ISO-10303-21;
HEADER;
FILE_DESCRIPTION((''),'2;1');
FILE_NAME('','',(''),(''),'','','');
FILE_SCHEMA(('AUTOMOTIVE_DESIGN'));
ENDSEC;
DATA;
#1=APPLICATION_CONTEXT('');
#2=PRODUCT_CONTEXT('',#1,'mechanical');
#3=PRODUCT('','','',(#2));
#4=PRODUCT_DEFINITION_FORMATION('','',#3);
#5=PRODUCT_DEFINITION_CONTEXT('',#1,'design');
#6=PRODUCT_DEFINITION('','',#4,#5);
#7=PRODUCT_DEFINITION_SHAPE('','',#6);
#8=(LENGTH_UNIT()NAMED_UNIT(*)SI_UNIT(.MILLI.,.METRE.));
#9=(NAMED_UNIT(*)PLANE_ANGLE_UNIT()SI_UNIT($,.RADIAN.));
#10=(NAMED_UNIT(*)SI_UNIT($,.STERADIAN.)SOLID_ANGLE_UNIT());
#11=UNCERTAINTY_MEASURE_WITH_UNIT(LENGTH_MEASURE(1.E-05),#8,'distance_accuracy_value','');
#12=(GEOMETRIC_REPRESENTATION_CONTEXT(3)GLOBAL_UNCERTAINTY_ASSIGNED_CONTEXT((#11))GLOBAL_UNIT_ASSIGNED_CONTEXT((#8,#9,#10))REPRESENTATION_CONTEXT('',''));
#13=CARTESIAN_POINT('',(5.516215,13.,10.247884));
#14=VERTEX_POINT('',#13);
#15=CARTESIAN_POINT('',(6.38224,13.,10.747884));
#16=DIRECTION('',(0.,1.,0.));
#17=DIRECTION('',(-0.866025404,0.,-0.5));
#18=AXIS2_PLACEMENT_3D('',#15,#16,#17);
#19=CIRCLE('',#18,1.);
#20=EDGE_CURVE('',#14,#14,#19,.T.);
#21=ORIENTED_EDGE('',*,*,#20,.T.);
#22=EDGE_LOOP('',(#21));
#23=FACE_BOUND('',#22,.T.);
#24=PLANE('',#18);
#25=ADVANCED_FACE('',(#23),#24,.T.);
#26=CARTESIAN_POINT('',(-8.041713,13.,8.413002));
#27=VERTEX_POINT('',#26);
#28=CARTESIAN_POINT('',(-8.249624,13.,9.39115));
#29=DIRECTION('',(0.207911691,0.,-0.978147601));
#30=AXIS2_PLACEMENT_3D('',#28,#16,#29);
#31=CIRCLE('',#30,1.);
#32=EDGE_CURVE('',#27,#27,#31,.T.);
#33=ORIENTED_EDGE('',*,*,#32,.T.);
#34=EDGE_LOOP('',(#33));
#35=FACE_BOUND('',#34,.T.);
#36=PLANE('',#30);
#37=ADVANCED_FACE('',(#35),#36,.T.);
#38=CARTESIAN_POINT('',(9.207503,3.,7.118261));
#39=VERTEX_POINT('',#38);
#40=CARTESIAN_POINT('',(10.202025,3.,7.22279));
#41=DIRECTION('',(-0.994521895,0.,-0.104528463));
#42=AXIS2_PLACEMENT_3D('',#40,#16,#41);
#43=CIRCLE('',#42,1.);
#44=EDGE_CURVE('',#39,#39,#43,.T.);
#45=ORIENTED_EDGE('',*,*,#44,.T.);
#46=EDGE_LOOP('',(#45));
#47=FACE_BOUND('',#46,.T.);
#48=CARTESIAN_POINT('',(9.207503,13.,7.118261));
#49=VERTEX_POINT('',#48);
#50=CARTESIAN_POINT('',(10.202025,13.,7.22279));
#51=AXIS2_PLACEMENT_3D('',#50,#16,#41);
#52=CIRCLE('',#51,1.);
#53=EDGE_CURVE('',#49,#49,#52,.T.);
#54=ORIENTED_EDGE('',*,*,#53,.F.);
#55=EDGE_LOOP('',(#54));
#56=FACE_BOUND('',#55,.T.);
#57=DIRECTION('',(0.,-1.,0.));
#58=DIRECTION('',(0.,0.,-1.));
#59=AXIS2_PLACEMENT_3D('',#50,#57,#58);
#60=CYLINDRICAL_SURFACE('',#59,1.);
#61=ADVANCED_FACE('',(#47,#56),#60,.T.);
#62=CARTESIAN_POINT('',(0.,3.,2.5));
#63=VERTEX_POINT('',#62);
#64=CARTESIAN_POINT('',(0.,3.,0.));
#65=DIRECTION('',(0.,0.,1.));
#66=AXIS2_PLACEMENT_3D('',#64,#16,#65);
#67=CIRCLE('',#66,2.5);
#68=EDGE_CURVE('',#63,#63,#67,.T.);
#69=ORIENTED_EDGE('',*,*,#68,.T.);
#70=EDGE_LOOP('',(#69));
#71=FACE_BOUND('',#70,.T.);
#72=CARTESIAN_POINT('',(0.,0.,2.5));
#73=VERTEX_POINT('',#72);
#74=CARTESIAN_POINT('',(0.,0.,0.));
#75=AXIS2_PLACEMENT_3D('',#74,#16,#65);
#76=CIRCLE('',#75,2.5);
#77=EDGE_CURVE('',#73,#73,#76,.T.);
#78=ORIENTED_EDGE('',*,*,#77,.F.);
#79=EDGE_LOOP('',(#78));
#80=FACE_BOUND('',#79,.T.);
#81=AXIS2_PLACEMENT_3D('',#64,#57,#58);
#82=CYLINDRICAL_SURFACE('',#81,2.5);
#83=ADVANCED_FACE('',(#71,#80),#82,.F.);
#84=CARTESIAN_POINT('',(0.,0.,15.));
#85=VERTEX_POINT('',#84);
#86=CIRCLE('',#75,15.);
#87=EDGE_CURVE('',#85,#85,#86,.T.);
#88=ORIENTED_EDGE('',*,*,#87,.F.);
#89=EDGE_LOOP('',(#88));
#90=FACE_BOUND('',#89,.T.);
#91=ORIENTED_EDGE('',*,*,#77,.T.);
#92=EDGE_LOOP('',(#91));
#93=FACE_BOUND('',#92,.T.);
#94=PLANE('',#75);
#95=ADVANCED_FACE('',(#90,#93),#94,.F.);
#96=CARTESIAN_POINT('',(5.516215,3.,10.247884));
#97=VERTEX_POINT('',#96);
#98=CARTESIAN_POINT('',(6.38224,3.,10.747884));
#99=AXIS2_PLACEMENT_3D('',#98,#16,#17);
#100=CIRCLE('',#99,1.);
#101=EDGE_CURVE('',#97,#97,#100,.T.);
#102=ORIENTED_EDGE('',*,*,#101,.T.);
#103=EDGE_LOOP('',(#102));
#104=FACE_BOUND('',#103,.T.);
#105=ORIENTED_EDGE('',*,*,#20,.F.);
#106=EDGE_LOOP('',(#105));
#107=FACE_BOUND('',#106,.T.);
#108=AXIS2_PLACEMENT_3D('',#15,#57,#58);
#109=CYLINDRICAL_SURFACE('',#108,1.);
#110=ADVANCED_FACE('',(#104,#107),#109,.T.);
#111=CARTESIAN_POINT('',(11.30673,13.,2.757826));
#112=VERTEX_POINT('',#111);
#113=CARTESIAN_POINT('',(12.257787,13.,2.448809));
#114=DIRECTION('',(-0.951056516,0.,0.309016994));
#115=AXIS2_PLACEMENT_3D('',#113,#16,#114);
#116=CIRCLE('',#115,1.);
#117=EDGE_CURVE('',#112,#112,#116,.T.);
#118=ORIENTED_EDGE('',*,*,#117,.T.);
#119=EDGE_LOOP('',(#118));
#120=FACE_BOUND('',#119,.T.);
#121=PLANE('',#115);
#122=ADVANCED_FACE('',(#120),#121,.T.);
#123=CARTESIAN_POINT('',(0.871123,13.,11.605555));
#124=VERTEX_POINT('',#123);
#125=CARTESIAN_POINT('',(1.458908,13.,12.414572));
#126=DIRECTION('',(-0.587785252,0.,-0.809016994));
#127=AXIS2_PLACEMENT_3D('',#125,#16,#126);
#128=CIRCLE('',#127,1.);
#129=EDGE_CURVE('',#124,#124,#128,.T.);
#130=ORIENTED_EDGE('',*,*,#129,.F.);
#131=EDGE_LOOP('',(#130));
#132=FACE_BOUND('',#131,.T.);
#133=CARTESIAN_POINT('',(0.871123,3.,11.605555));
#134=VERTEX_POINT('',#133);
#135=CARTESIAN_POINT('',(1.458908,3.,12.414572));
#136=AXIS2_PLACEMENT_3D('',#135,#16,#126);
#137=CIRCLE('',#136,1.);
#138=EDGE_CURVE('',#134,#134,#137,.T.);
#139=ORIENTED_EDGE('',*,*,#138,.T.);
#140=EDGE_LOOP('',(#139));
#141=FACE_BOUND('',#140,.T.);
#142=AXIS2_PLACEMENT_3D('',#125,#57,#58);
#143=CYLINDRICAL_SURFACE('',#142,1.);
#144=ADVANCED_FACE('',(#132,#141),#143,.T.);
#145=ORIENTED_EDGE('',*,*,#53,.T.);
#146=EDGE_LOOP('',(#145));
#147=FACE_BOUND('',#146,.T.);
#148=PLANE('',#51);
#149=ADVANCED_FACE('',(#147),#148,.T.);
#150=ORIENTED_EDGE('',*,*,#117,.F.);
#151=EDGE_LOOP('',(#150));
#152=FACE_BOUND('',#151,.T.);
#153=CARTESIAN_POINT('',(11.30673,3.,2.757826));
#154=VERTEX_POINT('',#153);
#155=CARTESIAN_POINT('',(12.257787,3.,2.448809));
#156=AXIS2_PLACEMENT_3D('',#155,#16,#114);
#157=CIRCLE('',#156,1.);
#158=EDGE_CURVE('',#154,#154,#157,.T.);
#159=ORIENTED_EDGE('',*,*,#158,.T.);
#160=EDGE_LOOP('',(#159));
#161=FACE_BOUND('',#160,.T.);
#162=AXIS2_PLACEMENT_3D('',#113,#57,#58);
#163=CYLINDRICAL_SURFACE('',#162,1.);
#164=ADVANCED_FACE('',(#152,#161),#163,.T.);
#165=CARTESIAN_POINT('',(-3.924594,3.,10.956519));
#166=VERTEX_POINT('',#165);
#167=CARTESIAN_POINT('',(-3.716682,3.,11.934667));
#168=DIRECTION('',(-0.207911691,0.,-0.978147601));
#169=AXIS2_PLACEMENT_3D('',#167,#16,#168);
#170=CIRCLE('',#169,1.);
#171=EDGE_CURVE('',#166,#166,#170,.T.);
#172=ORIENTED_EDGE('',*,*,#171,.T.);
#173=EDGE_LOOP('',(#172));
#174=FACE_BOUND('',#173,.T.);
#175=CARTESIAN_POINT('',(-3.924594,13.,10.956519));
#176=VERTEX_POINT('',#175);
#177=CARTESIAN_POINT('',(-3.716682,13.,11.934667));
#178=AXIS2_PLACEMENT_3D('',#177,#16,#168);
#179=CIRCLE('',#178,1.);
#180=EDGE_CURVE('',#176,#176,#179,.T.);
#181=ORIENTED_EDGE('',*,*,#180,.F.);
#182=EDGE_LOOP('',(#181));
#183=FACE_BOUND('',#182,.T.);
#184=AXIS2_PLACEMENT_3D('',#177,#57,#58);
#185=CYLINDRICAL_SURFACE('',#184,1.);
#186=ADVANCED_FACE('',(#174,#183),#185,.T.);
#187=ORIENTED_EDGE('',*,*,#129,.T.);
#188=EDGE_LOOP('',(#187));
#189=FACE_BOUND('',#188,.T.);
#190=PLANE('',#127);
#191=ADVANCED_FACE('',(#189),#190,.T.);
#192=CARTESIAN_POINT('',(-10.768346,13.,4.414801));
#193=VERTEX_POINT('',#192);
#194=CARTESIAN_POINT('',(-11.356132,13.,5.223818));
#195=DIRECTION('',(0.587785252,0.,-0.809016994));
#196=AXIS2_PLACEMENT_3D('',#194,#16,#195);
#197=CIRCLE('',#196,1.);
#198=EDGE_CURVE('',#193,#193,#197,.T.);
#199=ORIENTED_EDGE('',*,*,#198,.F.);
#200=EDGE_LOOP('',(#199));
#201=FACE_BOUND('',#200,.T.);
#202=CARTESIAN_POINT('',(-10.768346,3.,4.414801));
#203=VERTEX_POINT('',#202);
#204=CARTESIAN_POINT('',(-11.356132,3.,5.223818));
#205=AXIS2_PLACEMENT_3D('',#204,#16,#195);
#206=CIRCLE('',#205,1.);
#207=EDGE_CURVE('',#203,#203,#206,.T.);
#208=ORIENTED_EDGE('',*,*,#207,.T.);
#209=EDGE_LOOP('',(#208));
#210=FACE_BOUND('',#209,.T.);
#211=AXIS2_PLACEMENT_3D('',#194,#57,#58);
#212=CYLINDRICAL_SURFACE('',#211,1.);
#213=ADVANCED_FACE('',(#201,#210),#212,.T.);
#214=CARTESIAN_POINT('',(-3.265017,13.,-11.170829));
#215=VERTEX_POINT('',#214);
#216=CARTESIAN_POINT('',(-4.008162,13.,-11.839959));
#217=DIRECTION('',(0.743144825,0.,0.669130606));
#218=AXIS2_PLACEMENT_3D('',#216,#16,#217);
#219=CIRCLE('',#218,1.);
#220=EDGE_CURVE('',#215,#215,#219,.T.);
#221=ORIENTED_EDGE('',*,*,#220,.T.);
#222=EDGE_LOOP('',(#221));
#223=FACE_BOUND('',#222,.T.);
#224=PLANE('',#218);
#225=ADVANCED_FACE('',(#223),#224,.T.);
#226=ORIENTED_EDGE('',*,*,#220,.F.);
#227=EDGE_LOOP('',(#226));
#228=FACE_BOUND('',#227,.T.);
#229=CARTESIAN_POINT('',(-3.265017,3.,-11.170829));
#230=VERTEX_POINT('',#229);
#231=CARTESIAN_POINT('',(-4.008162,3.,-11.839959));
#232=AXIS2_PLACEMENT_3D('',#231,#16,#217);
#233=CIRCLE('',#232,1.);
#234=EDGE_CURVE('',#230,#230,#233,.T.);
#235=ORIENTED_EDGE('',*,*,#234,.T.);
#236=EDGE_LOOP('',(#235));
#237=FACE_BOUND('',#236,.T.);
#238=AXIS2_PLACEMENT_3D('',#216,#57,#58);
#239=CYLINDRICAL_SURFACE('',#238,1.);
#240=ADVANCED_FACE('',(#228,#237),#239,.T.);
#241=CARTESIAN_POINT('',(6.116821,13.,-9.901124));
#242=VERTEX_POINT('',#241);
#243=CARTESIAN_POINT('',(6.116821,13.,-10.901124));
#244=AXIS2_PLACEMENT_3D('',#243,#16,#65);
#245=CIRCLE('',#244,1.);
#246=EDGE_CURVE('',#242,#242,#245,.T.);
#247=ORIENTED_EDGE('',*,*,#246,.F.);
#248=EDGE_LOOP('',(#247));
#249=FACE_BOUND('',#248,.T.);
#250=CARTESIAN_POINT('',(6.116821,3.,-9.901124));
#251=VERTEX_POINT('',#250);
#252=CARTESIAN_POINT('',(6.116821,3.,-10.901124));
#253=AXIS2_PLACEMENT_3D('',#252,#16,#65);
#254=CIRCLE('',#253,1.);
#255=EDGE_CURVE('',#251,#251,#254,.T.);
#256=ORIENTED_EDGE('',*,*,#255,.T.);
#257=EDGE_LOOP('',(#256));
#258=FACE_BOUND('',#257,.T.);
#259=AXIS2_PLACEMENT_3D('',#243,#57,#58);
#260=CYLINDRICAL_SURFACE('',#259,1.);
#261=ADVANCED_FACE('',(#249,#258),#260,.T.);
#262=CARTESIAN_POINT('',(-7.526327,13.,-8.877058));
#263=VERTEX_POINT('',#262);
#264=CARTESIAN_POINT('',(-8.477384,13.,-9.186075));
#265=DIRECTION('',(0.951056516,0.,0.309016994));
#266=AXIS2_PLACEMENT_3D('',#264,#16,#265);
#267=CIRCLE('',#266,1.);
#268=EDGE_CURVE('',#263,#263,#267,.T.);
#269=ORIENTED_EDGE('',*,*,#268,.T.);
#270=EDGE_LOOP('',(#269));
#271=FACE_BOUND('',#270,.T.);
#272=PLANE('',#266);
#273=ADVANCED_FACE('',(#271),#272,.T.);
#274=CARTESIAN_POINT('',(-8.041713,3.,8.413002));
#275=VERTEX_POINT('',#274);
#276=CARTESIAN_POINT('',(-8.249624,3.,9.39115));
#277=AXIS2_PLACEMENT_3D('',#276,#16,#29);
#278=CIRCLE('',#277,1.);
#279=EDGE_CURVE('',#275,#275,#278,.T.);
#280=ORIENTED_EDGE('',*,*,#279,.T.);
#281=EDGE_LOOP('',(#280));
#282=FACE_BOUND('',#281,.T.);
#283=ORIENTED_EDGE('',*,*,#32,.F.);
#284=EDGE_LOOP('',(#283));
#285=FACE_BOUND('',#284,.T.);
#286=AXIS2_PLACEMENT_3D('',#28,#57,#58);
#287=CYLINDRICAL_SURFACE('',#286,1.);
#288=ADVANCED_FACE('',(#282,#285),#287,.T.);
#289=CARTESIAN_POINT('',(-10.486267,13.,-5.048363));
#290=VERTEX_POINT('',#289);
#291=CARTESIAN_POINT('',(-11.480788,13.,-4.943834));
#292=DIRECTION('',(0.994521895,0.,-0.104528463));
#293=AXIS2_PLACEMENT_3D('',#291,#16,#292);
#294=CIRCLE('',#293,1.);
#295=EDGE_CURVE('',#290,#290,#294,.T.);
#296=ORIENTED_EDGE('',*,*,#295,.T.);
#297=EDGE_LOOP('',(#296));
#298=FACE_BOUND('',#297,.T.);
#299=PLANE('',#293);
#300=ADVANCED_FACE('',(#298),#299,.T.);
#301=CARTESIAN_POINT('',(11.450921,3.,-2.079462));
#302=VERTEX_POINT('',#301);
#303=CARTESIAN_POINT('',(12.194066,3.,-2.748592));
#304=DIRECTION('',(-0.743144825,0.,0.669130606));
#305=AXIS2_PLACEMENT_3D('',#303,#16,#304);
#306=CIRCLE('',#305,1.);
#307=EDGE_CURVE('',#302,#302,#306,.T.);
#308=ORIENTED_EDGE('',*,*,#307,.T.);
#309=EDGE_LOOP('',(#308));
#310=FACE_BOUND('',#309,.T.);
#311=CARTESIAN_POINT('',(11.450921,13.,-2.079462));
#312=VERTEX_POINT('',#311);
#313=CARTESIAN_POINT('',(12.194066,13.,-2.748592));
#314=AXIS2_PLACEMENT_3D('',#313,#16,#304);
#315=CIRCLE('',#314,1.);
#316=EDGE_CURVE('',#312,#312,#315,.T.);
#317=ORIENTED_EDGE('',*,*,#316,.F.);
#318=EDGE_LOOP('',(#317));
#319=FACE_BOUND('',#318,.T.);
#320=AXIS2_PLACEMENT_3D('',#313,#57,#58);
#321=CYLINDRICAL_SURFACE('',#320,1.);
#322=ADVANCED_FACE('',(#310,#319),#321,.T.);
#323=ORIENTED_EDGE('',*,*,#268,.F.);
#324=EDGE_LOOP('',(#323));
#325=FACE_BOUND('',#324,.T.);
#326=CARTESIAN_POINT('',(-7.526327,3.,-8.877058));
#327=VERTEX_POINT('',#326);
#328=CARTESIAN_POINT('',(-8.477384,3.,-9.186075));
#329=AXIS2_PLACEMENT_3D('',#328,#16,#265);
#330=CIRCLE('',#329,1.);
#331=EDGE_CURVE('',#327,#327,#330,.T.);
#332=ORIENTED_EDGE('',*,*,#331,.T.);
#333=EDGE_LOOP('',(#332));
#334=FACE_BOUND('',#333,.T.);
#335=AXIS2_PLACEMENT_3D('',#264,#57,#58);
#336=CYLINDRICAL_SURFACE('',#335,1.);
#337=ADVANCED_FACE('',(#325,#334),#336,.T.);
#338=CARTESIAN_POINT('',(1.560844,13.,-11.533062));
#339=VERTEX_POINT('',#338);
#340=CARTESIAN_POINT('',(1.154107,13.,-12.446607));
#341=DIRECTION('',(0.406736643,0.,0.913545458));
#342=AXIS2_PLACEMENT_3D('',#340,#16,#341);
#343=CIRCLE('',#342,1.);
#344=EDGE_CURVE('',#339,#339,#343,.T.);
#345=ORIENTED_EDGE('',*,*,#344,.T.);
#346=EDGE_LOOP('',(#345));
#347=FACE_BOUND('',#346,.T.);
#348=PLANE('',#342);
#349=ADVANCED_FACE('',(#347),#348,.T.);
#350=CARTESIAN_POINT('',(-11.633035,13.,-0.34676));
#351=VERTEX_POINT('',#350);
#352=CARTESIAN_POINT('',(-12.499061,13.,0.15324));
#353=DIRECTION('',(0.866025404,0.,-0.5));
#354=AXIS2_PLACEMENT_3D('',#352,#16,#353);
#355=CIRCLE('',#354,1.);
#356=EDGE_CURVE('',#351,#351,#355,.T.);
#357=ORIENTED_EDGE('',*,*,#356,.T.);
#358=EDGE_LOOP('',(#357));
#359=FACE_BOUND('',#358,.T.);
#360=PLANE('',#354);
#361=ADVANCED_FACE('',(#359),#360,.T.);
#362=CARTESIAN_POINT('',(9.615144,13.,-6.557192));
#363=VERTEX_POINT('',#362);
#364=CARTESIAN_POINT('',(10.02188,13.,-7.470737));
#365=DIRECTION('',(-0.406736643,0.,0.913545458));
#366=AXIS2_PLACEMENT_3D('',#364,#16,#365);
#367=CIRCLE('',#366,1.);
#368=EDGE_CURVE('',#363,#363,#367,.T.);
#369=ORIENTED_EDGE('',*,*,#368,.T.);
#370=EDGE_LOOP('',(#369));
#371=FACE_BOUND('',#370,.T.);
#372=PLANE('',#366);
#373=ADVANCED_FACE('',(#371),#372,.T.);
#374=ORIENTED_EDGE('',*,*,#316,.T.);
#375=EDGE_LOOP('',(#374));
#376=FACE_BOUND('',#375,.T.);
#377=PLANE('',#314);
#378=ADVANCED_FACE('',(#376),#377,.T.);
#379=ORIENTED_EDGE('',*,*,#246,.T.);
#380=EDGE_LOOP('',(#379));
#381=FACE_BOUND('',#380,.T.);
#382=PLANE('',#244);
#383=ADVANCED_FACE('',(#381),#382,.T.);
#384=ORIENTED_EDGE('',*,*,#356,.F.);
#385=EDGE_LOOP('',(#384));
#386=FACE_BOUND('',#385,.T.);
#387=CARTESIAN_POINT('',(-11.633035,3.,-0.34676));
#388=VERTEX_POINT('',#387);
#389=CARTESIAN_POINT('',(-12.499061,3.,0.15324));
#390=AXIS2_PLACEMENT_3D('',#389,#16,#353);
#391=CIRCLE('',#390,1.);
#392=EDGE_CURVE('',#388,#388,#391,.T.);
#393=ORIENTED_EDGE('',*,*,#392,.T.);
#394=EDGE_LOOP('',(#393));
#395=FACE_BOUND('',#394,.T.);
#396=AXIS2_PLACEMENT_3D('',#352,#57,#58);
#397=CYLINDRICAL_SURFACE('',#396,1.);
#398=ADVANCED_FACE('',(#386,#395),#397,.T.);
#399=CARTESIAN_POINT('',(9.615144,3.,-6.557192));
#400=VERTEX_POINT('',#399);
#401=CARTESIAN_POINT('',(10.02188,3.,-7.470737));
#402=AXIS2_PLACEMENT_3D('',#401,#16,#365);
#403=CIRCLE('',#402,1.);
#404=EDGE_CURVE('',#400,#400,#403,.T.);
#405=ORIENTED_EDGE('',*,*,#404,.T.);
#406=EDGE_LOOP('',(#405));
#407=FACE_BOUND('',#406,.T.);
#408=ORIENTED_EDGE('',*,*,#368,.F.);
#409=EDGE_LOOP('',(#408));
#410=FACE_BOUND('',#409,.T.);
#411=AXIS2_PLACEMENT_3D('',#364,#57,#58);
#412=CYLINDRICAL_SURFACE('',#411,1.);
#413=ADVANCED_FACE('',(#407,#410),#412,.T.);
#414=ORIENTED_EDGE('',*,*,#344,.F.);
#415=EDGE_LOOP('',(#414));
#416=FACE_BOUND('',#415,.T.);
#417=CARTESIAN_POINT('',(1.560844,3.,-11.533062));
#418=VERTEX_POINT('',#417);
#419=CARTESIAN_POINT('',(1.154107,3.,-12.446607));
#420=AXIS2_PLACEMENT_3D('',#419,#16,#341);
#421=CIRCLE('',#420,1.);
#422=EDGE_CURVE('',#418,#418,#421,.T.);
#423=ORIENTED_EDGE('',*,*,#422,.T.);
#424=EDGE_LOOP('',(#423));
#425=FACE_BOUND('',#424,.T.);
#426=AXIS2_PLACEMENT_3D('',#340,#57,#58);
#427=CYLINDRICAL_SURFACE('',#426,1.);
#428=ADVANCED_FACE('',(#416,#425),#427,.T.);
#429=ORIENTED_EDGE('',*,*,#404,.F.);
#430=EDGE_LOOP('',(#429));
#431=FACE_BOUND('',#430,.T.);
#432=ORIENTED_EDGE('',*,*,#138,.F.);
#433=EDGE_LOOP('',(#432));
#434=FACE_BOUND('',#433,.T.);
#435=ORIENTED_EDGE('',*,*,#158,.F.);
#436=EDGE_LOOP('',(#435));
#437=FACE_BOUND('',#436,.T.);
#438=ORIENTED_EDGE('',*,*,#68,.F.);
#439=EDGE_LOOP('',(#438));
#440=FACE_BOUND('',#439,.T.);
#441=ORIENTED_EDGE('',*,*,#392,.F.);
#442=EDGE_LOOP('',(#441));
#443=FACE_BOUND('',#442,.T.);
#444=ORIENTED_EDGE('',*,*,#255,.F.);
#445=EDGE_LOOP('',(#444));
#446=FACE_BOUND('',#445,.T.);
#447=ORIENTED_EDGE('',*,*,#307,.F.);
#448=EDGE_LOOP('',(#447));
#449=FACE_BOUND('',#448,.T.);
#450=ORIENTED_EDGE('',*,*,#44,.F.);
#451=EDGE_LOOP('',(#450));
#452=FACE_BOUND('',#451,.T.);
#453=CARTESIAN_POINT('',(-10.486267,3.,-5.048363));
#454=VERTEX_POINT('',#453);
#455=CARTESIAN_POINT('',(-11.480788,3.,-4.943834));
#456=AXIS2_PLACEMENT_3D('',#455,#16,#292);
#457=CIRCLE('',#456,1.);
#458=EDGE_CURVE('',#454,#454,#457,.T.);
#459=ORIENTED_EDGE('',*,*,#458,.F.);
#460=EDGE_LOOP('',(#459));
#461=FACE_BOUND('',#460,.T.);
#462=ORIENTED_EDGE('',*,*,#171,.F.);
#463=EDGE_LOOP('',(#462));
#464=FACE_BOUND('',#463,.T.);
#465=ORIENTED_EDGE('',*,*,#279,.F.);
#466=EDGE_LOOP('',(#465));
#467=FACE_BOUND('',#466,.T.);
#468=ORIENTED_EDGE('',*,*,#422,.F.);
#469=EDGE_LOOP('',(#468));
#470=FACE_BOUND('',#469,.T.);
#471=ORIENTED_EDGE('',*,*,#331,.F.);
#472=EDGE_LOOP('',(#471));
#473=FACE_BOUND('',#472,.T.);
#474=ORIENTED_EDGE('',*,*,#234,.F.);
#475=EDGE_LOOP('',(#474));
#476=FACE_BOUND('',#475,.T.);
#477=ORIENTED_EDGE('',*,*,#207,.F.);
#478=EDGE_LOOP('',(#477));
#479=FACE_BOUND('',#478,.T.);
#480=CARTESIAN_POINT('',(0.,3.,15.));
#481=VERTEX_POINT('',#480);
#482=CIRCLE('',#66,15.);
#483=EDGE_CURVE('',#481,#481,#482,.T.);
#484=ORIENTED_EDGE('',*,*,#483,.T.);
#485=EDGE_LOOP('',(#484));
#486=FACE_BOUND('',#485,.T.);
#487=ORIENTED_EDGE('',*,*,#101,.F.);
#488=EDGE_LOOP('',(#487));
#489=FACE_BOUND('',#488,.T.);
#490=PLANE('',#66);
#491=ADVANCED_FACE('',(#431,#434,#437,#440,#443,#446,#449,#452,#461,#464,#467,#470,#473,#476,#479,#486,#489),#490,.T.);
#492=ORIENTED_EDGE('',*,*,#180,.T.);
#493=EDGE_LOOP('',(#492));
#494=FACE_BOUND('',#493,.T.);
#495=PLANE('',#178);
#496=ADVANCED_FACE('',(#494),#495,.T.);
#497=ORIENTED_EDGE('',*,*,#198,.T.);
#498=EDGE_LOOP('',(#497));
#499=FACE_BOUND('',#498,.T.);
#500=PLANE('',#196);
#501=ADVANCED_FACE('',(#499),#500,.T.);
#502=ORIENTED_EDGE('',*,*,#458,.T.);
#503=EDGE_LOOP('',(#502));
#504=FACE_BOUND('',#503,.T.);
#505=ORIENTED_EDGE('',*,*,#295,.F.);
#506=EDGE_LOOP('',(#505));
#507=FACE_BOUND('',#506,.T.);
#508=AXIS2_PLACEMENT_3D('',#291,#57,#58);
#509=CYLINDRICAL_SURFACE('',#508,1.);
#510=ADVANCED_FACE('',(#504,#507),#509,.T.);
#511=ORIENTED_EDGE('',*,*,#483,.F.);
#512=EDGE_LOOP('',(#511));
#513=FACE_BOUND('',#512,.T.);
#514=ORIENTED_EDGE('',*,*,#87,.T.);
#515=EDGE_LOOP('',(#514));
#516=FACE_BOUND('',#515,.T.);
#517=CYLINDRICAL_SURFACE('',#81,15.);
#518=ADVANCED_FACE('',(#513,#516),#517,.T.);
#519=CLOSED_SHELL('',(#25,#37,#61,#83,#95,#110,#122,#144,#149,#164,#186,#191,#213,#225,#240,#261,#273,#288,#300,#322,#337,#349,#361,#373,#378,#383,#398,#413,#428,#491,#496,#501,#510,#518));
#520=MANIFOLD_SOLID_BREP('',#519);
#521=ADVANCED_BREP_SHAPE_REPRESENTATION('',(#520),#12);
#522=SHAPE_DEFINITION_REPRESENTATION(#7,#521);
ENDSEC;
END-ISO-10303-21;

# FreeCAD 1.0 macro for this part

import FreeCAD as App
import Part
import Sketcher
Q = App.Units.Quantity

doc = App.newDocument("Part")
params = doc.addObject("Spreadsheet::Sheet", "Params")
for row, (alias, value) in enumerate([
    ("sketch1_diameter", "30 mm"),
    ("sketch1_diameter2", "5 mm"),
    ("pad1_length", "3 mm"),
    ("sketch2_diameter", "2 mm"),
    ("pad2_length", "10 mm"),
], start=1):
    params.set(f"A{row}", alias)
    params.set(f"B{row}", "=" + value)
    params.setAlias(f"B{row}", alias)

body = doc.addObject("PartDesign::Body", "Body")

# Sketch on XZ plane
sketch1 = body.newObject("Sketcher::SketchObject", "Sketch")
sketch1.AttachmentSupport = (doc.getObject("XZ_Plane"), [""])
sketch1.MapMode = "FlatFace"
sketch1.addGeometry([
    Part.Circle(App.Vector(0, 0, 0), App.Vector(0, 0, 1), 15),
    Part.Circle(App.Vector(0, 0, 0), App.Vector(0, 0, 1), 2.5),
], False)
sketch1.addConstraint([
    Sketcher.Constraint("Coincident", 0, 3, -1, 1),
    Sketcher.Constraint("Coincident", 1, 3, -1, 1),
    Sketcher.Constraint("Diameter", 0, Q("30 mm")),
    Sketcher.Constraint("Diameter", 1, Q("5 mm")),
])
sketch1.setExpression("Constraints[2]", "Params.sketch1_diameter")
sketch1.setExpression("Constraints[3]", "Params.sketch1_diameter2")
pad1 = body.newObject("PartDesign::Pad", "Pad")
pad1.Profile = sketch1
pad1.setExpression("Length", "Params.pad1_length")
pad1.Reversed = True

# Sketch on XZ plane
sketch2 = body.newObject("Sketcher::SketchObject", "Sketch001")
sketch2.AttachmentSupport = (doc.getObject("XZ_Plane"), [""])
sketch2.MapMode = "FlatFace"
sketch2.AttachmentOffset = App.Placement(App.Vector(0, 0, -3), App.Rotation())
sketch2.addGeometry(Part.Circle(App.Vector(6.1, -10.9, 0), App.Vector(0, 0, 1), 1), False)
sketch2.addConstraint([
    Sketcher.Constraint("Diameter", 0, Q("2 mm")),
    Sketcher.Constraint("DistanceX", -1, 1, 0, 3, Q("6.116821 mm")),
    Sketcher.Constraint("DistanceY", 0, 3, -1, 1, Q("10.901124 mm")),
])
sketch2.setExpression("Constraints[0]", "Params.sketch2_diameter")
pad2 = body.newObject("PartDesign::Pad", "Pad001")
pad2.Profile = sketch2
pad2.setExpression("Length", "Params.pad2_length")
pad2.Reversed = True
doc.recompute()

polarpattern = body.newObject("PartDesign::PolarPattern", "PolarPattern")
polarpattern.Originals = [pad2]
polarpattern.Axis = (doc.getObject("Y_Axis"), [""])
polarpattern.Angle = 360
polarpattern.Occurrences = 15
body.Tip = polarpattern

doc.recompute()
